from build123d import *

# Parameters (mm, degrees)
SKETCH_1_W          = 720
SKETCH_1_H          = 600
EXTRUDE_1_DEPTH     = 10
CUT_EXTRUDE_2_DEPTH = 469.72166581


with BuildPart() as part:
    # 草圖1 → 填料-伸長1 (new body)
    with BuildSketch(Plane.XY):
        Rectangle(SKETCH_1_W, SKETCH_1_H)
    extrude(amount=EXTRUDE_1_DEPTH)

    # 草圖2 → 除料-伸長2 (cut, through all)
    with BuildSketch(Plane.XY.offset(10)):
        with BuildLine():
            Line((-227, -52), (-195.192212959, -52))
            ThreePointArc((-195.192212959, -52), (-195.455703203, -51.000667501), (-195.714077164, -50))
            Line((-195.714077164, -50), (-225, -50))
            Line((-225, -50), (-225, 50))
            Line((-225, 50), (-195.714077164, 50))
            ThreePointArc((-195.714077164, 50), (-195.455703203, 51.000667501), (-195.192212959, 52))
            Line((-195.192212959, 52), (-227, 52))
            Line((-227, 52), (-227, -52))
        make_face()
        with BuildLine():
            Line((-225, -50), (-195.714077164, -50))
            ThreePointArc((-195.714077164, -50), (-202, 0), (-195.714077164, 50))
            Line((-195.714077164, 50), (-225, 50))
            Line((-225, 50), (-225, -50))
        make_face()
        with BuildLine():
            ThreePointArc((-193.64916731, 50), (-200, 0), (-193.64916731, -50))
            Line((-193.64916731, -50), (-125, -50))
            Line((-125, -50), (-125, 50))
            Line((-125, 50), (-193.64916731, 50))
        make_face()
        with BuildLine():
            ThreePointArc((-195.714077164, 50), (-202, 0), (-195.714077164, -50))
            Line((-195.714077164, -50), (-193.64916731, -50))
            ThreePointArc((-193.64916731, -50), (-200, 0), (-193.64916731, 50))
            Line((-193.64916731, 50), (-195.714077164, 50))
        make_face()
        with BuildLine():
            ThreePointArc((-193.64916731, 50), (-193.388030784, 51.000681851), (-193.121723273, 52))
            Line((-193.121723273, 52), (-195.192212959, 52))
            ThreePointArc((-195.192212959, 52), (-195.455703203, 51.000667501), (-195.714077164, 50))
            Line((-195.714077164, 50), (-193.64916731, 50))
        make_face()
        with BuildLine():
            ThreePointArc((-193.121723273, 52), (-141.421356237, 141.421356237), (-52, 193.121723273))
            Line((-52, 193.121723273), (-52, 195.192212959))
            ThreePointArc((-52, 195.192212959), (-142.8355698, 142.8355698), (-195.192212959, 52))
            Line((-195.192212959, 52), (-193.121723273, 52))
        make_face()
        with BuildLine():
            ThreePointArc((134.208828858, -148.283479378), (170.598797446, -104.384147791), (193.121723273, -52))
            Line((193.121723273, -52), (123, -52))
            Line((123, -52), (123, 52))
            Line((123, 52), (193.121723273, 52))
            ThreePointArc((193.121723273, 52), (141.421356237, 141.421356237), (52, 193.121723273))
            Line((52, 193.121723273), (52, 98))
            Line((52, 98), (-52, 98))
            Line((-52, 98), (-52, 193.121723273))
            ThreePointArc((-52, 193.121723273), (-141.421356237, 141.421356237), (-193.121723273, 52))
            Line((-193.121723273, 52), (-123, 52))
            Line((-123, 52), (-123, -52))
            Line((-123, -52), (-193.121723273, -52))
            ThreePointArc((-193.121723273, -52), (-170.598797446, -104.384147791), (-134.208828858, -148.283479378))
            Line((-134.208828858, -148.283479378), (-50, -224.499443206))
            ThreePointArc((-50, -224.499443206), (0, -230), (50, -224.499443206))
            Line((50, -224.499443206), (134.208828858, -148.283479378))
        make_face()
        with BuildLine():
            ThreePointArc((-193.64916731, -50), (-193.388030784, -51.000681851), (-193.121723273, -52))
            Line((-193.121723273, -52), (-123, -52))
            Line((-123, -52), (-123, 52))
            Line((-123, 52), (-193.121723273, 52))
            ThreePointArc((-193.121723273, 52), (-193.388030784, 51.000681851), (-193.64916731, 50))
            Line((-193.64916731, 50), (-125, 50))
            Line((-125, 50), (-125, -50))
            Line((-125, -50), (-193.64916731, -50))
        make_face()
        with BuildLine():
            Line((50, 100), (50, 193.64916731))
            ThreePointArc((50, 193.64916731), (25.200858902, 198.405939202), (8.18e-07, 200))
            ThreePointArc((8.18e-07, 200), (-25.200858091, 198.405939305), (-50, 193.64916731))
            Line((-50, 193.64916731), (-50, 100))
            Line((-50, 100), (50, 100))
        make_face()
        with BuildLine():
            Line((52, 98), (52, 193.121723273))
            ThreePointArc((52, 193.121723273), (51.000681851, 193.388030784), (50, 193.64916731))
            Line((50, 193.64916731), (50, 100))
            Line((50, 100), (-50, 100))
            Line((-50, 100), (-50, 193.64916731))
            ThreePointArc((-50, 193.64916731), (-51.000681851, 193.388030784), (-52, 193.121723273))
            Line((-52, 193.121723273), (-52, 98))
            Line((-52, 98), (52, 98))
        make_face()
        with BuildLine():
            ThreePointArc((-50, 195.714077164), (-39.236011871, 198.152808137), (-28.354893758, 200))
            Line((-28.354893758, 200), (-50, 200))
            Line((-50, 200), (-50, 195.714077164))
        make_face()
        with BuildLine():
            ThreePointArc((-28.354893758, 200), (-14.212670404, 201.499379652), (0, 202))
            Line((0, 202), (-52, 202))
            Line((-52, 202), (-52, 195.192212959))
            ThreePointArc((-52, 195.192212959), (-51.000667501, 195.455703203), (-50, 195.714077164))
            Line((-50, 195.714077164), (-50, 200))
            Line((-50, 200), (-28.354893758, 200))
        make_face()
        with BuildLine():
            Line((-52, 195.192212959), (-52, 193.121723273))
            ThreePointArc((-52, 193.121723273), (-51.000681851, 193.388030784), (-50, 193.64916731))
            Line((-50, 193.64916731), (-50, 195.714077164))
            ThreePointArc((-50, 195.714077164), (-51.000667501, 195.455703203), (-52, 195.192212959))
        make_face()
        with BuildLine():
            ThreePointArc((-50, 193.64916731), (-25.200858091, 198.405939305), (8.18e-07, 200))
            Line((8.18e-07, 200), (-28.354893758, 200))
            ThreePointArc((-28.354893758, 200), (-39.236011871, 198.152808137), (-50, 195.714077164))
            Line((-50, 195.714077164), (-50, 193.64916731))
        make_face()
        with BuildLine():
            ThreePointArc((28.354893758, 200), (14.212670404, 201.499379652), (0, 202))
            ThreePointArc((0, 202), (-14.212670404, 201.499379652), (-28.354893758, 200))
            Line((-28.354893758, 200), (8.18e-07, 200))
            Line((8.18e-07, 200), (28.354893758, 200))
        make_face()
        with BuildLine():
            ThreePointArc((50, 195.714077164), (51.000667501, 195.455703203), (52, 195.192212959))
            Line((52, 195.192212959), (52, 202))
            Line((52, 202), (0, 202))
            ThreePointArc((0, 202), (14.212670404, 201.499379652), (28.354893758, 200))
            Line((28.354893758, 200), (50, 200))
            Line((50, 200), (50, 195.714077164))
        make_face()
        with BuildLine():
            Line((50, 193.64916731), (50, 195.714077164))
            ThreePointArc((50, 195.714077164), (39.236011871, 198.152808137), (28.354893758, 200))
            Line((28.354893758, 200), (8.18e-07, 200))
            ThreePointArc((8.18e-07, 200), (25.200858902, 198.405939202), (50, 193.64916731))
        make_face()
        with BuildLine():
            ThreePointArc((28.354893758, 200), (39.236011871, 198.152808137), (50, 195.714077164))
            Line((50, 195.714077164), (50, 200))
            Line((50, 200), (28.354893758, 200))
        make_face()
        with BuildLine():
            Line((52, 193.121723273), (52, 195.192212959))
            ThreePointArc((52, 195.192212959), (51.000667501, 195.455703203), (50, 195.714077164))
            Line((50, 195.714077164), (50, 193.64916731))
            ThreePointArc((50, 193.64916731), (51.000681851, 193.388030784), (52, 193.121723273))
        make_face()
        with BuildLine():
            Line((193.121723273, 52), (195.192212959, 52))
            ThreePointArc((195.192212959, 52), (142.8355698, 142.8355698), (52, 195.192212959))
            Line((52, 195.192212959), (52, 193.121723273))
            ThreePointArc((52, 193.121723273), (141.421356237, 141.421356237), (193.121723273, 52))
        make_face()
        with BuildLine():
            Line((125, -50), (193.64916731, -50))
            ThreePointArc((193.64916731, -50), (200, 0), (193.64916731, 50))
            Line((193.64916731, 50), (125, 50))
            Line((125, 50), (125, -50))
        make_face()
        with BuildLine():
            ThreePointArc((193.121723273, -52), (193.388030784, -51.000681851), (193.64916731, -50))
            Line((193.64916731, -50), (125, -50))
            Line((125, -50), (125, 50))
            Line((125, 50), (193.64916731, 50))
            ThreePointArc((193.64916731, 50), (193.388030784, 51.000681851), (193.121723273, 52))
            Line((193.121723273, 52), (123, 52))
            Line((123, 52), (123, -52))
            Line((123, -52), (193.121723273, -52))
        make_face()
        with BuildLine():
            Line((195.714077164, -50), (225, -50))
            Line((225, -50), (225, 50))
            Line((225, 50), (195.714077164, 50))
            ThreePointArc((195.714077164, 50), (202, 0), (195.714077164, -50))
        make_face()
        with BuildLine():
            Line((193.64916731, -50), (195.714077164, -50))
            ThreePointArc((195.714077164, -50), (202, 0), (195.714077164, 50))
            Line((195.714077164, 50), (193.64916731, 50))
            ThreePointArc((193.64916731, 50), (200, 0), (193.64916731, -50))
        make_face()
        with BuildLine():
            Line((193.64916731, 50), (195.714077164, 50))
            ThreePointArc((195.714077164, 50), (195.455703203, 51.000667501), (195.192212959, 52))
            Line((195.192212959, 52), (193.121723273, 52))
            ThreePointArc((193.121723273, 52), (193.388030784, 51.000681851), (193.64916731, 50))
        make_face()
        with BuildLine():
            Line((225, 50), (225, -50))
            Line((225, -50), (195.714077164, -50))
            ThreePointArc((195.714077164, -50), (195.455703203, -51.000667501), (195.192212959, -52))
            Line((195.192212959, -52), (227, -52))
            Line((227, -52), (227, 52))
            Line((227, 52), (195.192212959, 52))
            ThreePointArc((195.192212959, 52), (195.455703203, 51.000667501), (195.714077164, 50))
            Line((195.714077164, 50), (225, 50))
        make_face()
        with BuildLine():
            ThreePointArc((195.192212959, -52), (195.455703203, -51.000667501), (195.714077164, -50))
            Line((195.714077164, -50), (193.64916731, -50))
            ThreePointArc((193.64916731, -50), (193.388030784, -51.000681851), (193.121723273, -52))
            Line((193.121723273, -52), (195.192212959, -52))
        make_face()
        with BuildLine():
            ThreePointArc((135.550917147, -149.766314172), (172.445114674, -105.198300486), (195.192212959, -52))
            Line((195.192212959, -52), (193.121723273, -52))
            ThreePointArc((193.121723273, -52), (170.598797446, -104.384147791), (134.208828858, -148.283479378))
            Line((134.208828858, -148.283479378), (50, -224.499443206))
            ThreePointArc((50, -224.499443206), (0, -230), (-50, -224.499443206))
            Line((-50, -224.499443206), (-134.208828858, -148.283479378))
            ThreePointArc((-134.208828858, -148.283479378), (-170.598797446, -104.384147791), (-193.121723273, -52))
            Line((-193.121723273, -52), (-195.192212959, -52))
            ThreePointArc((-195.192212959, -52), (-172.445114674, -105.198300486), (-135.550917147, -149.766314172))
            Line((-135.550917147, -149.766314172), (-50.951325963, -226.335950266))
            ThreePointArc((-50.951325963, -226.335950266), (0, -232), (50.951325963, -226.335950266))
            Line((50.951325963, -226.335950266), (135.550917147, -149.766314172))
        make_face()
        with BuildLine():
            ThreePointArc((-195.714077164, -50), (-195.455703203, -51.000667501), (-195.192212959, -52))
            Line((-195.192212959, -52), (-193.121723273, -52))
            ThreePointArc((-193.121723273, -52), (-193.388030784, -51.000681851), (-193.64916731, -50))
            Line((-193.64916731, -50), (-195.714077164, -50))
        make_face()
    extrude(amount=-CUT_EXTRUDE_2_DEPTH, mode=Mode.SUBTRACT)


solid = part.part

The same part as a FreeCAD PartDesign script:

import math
import FreeCAD as App
import Part
import Sketcher
from FreeCAD import Vector


def add_polygon(sketch, points):
    """Adds a closed chain of lines whose ends are joined by coincident constraints."""
    first, n = sketch.GeometryCount, len(points)
    for a, b in zip(points, points[1:] + points[:1]):
        sketch.addGeometry(Part.LineSegment(App.Vector(*a, 0), App.Vector(*b, 0)), False)
    for i in range(n):
        sketch.addConstraint(Sketcher.Constraint("Coincident", first + i, 2, first + (i + 1) % n, 1))

doc = App.newDocument("Part")
body = doc.addObject("PartDesign::Body", "Body")

# Sketch on XY plane
sketch1 = doc.addObject("Sketcher::SketchObject", "Sketch")
body.addObject(sketch1)
sketch1.AttachmentSupport = (doc.XY_Plane, [""])
sketch1.MapMode = "FlatFace"
add_polygon(sketch1, [(-360, 300), (-360, -300), (360, -300), (360, 300)])  # lines 0-3
sketch1.addConstraint(Sketcher.Constraint("Vertical", 0))
sketch1.addConstraint(Sketcher.Constraint("Horizontal", 1))
sketch1.addConstraint(Sketcher.Constraint("Vertical", 2))
sketch1.addConstraint(Sketcher.Constraint("Horizontal", 3))
sketch1.addConstraint(Sketcher.Constraint("Symmetric", 0, 2, 2, 2, -1, 1))
sketch1.addConstraint(Sketcher.Constraint("DistanceX", 1, 1, 1, 2, 720.0))
sketch1.addConstraint(Sketcher.Constraint("DistanceY", 0, 2, 0, 1, 600.0))
pad1 = doc.addObject("PartDesign::Pad", "Pad")
body.addObject(pad1)
pad1.Profile = sketch1
pad1.Length = 10

# Sketch on XY plane
sketch2 = doc.addObject("Sketcher::SketchObject", "Sketch001")
body.addObject(sketch2)
sketch2.AttachmentSupport = (doc.XY_Plane, [""])
sketch2.MapMode = "FlatFace"
sketch2.AttachmentOffset = App.Placement(Vector(0, 0, 10), App.Rotation())
sketch2.addGeometry(Part.LineSegment(Vector(-227, -52, 0), Vector(-195, -52, 0)), False)
sketch2.addGeometry(Part.ArcOfCircle(Part.Circle(Vector(0, 0, 0), Vector(0, 0, 1), 202), math.radians(-165), math.radians(-132)), False)
sketch2.addGeometry(Part.LineSegment(Vector(-136, -150, 0), Vector(-51, -226, 0)), False)
sketch2.addGeometry(Part.ArcOfCircle(Part.Circle(Vector(0, 0, 0), Vector(0, 0, 1), 232), math.radians(-103), math.radians(-77)), False)
sketch2.addGeometry(Part.LineSegment(Vector(51, -226, 0), Vector(136, -150, 0)), False)
sketch2.addGeometry(Part.ArcOfCircle(Part.Circle(Vector(0, 0, 0), Vector(0, 0, 1), 202), math.radians(-48), math.radians(-15)), False)
sketch2.addGeometry(Part.LineSegment(Vector(195, -52, 0), Vector(227, -52, 0)), False)
sketch2.addGeometry(Part.LineSegment(Vector(227, -52, 0), Vector(227, 52, 0)), False)
sketch2.addGeometry(Part.LineSegment(Vector(227, 52, 0), Vector(195, 52, 0)), False)
sketch2.addGeometry(Part.ArcOfCircle(Part.Circle(Vector(0, 0, 0), Vector(0, 0, 1), 202), math.radians(15), math.radians(75)), False)
sketch2.addGeometry(Part.LineSegment(Vector(52, 195, 0), Vector(52, 202, 0)), False)
sketch2.addGeometry(Part.LineSegment(Vector(52, 202, 0), Vector(-52, 202, 0)), False)
sketch2.addGeometry(Part.LineSegment(Vector(-52, 202, 0), Vector(-52, 195, 0)), False)
sketch2.addGeometry(Part.ArcOfCircle(Part.Circle(Vector(0, 0, 0), Vector(0, 0, 1), 202), math.radians(105), math.radians(165)), False)
sketch2.addGeometry(Part.LineSegment(Vector(-195, 52, 0), Vector(-227, 52, 0)), False)
sketch2.addGeometry(Part.LineSegment(Vector(-227, 52, 0), Vector(-227, -52, 0)), False)
sketch2.addConstraint(Sketcher.Constraint("Coincident", 0, 2, 1, 1))
sketch2.addConstraint(Sketcher.Constraint("Tangent", 1, 2, 2, 1))
sketch2.addConstraint(Sketcher.Constraint("Coincident", 2, 2, 3, 1))
sketch2.addConstraint(Sketcher.Constraint("Coincident", 3, 2, 4, 1))
sketch2.addConstraint(Sketcher.Constraint("Tangent", 4, 2, 5, 1))
sketch2.addConstraint(Sketcher.Constraint("Coincident", 5, 2, 6, 1))
sketch2.addConstraint(Sketcher.Constraint("Coincident", 6, 2, 7, 1))
sketch2.addConstraint(Sketcher.Constraint("Coincident", 7, 2, 8, 1))
sketch2.addConstraint(Sketcher.Constraint("Coincident", 8, 2, 9, 1))
sketch2.addConstraint(Sketcher.Constraint("Coincident", 9, 2, 10, 1))
sketch2.addConstraint(Sketcher.Constraint("Coincident", 10, 2, 11, 1))
sketch2.addConstraint(Sketcher.Constraint("Coincident", 11, 2, 12, 1))
sketch2.addConstraint(Sketcher.Constraint("Coincident", 12, 2, 13, 1))
sketch2.addConstraint(Sketcher.Constraint("Coincident", 13, 2, 14, 1))
sketch2.addConstraint(Sketcher.Constraint("Coincident", 14, 2, 15, 1))
sketch2.addConstraint(Sketcher.Constraint("Coincident", 15, 2, 0, 1))
sketch2.addConstraint(Sketcher.Constraint("Horizontal", 0))
sketch2.addConstraint(Sketcher.Constraint("Horizontal", 6))
sketch2.addConstraint(Sketcher.Constraint("Vertical", 7))
sketch2.addConstraint(Sketcher.Constraint("Horizontal", 8))
sketch2.addConstraint(Sketcher.Constraint("Vertical", 10))
sketch2.addConstraint(Sketcher.Constraint("Horizontal", 11))
sketch2.addConstraint(Sketcher.Constraint("Vertical", 12))
sketch2.addConstraint(Sketcher.Constraint("Horizontal", 14))
sketch2.addConstraint(Sketcher.Constraint("Vertical", 15))
sketch2.addConstraint(Sketcher.Constraint("Coincident", 1, 3, -1, 1))
sketch2.addConstraint(Sketcher.Constraint("Coincident", 3, 3, -1, 1))
sketch2.addConstraint(Sketcher.Constraint("Coincident", 5, 3, -1, 1))
sketch2.addConstraint(Sketcher.Constraint("Coincident", 9, 3, -1, 1))
sketch2.addConstraint(Sketcher.Constraint("Coincident", 13, 3, -1, 1))
sketch2.addConstraint(Sketcher.Constraint("Equal", 1, 5))
sketch2.addConstraint(Sketcher.Constraint("Equal", 5, 9))
sketch2.addConstraint(Sketcher.Constraint("Equal", 9, 13))
sketch2.addConstraint(Sketcher.Constraint("Symmetric", 6, 2, 14, 2, -1, 1))
sketch2.addConstraint(Sketcher.Constraint("Horizontal", 2, 2, 3, 2))
sketch2.addConstraint(Sketcher.Constraint("Horizontal", 0, 2, 5, 2))
sketch2.addConstraint(Sketcher.Constraint("Horizontal", 9, 2, 12, 2))
sketch2.addConstraint(Sketcher.Constraint("Horizontal", 8, 2, 13, 2))
sketch2.addConstraint(Sketcher.Constraint("Equal", 11, 7))
sketch2.addConstraint(Sketcher.Constraint("Radius", 1, 202.0))
sketch2.addConstraint(Sketcher.Constraint("Radius", 3, 232.0))
sketch2.addConstraint(Sketcher.Constraint("DistanceX", 11, 2, 11, 1, 104.0))
sketch2.addConstraint(Sketcher.Constraint("DistanceX", -1, 1, 6, 2, 227.0))
sketch2.addConstraint(Sketcher.Constraint("DistanceY", -1, 1, 10, 2, 202.0))
sketch2.addConstraint(Sketcher.Constraint("DistanceY", 2, 2, -1, 1, 226.33595))
pocket1 = doc.addObject("PartDesign::Pocket", "Pocket")
body.addObject(pocket1)
pocket1.Profile = sketch2
pocket1.Type = "ThroughAll"

doc.recompute()
